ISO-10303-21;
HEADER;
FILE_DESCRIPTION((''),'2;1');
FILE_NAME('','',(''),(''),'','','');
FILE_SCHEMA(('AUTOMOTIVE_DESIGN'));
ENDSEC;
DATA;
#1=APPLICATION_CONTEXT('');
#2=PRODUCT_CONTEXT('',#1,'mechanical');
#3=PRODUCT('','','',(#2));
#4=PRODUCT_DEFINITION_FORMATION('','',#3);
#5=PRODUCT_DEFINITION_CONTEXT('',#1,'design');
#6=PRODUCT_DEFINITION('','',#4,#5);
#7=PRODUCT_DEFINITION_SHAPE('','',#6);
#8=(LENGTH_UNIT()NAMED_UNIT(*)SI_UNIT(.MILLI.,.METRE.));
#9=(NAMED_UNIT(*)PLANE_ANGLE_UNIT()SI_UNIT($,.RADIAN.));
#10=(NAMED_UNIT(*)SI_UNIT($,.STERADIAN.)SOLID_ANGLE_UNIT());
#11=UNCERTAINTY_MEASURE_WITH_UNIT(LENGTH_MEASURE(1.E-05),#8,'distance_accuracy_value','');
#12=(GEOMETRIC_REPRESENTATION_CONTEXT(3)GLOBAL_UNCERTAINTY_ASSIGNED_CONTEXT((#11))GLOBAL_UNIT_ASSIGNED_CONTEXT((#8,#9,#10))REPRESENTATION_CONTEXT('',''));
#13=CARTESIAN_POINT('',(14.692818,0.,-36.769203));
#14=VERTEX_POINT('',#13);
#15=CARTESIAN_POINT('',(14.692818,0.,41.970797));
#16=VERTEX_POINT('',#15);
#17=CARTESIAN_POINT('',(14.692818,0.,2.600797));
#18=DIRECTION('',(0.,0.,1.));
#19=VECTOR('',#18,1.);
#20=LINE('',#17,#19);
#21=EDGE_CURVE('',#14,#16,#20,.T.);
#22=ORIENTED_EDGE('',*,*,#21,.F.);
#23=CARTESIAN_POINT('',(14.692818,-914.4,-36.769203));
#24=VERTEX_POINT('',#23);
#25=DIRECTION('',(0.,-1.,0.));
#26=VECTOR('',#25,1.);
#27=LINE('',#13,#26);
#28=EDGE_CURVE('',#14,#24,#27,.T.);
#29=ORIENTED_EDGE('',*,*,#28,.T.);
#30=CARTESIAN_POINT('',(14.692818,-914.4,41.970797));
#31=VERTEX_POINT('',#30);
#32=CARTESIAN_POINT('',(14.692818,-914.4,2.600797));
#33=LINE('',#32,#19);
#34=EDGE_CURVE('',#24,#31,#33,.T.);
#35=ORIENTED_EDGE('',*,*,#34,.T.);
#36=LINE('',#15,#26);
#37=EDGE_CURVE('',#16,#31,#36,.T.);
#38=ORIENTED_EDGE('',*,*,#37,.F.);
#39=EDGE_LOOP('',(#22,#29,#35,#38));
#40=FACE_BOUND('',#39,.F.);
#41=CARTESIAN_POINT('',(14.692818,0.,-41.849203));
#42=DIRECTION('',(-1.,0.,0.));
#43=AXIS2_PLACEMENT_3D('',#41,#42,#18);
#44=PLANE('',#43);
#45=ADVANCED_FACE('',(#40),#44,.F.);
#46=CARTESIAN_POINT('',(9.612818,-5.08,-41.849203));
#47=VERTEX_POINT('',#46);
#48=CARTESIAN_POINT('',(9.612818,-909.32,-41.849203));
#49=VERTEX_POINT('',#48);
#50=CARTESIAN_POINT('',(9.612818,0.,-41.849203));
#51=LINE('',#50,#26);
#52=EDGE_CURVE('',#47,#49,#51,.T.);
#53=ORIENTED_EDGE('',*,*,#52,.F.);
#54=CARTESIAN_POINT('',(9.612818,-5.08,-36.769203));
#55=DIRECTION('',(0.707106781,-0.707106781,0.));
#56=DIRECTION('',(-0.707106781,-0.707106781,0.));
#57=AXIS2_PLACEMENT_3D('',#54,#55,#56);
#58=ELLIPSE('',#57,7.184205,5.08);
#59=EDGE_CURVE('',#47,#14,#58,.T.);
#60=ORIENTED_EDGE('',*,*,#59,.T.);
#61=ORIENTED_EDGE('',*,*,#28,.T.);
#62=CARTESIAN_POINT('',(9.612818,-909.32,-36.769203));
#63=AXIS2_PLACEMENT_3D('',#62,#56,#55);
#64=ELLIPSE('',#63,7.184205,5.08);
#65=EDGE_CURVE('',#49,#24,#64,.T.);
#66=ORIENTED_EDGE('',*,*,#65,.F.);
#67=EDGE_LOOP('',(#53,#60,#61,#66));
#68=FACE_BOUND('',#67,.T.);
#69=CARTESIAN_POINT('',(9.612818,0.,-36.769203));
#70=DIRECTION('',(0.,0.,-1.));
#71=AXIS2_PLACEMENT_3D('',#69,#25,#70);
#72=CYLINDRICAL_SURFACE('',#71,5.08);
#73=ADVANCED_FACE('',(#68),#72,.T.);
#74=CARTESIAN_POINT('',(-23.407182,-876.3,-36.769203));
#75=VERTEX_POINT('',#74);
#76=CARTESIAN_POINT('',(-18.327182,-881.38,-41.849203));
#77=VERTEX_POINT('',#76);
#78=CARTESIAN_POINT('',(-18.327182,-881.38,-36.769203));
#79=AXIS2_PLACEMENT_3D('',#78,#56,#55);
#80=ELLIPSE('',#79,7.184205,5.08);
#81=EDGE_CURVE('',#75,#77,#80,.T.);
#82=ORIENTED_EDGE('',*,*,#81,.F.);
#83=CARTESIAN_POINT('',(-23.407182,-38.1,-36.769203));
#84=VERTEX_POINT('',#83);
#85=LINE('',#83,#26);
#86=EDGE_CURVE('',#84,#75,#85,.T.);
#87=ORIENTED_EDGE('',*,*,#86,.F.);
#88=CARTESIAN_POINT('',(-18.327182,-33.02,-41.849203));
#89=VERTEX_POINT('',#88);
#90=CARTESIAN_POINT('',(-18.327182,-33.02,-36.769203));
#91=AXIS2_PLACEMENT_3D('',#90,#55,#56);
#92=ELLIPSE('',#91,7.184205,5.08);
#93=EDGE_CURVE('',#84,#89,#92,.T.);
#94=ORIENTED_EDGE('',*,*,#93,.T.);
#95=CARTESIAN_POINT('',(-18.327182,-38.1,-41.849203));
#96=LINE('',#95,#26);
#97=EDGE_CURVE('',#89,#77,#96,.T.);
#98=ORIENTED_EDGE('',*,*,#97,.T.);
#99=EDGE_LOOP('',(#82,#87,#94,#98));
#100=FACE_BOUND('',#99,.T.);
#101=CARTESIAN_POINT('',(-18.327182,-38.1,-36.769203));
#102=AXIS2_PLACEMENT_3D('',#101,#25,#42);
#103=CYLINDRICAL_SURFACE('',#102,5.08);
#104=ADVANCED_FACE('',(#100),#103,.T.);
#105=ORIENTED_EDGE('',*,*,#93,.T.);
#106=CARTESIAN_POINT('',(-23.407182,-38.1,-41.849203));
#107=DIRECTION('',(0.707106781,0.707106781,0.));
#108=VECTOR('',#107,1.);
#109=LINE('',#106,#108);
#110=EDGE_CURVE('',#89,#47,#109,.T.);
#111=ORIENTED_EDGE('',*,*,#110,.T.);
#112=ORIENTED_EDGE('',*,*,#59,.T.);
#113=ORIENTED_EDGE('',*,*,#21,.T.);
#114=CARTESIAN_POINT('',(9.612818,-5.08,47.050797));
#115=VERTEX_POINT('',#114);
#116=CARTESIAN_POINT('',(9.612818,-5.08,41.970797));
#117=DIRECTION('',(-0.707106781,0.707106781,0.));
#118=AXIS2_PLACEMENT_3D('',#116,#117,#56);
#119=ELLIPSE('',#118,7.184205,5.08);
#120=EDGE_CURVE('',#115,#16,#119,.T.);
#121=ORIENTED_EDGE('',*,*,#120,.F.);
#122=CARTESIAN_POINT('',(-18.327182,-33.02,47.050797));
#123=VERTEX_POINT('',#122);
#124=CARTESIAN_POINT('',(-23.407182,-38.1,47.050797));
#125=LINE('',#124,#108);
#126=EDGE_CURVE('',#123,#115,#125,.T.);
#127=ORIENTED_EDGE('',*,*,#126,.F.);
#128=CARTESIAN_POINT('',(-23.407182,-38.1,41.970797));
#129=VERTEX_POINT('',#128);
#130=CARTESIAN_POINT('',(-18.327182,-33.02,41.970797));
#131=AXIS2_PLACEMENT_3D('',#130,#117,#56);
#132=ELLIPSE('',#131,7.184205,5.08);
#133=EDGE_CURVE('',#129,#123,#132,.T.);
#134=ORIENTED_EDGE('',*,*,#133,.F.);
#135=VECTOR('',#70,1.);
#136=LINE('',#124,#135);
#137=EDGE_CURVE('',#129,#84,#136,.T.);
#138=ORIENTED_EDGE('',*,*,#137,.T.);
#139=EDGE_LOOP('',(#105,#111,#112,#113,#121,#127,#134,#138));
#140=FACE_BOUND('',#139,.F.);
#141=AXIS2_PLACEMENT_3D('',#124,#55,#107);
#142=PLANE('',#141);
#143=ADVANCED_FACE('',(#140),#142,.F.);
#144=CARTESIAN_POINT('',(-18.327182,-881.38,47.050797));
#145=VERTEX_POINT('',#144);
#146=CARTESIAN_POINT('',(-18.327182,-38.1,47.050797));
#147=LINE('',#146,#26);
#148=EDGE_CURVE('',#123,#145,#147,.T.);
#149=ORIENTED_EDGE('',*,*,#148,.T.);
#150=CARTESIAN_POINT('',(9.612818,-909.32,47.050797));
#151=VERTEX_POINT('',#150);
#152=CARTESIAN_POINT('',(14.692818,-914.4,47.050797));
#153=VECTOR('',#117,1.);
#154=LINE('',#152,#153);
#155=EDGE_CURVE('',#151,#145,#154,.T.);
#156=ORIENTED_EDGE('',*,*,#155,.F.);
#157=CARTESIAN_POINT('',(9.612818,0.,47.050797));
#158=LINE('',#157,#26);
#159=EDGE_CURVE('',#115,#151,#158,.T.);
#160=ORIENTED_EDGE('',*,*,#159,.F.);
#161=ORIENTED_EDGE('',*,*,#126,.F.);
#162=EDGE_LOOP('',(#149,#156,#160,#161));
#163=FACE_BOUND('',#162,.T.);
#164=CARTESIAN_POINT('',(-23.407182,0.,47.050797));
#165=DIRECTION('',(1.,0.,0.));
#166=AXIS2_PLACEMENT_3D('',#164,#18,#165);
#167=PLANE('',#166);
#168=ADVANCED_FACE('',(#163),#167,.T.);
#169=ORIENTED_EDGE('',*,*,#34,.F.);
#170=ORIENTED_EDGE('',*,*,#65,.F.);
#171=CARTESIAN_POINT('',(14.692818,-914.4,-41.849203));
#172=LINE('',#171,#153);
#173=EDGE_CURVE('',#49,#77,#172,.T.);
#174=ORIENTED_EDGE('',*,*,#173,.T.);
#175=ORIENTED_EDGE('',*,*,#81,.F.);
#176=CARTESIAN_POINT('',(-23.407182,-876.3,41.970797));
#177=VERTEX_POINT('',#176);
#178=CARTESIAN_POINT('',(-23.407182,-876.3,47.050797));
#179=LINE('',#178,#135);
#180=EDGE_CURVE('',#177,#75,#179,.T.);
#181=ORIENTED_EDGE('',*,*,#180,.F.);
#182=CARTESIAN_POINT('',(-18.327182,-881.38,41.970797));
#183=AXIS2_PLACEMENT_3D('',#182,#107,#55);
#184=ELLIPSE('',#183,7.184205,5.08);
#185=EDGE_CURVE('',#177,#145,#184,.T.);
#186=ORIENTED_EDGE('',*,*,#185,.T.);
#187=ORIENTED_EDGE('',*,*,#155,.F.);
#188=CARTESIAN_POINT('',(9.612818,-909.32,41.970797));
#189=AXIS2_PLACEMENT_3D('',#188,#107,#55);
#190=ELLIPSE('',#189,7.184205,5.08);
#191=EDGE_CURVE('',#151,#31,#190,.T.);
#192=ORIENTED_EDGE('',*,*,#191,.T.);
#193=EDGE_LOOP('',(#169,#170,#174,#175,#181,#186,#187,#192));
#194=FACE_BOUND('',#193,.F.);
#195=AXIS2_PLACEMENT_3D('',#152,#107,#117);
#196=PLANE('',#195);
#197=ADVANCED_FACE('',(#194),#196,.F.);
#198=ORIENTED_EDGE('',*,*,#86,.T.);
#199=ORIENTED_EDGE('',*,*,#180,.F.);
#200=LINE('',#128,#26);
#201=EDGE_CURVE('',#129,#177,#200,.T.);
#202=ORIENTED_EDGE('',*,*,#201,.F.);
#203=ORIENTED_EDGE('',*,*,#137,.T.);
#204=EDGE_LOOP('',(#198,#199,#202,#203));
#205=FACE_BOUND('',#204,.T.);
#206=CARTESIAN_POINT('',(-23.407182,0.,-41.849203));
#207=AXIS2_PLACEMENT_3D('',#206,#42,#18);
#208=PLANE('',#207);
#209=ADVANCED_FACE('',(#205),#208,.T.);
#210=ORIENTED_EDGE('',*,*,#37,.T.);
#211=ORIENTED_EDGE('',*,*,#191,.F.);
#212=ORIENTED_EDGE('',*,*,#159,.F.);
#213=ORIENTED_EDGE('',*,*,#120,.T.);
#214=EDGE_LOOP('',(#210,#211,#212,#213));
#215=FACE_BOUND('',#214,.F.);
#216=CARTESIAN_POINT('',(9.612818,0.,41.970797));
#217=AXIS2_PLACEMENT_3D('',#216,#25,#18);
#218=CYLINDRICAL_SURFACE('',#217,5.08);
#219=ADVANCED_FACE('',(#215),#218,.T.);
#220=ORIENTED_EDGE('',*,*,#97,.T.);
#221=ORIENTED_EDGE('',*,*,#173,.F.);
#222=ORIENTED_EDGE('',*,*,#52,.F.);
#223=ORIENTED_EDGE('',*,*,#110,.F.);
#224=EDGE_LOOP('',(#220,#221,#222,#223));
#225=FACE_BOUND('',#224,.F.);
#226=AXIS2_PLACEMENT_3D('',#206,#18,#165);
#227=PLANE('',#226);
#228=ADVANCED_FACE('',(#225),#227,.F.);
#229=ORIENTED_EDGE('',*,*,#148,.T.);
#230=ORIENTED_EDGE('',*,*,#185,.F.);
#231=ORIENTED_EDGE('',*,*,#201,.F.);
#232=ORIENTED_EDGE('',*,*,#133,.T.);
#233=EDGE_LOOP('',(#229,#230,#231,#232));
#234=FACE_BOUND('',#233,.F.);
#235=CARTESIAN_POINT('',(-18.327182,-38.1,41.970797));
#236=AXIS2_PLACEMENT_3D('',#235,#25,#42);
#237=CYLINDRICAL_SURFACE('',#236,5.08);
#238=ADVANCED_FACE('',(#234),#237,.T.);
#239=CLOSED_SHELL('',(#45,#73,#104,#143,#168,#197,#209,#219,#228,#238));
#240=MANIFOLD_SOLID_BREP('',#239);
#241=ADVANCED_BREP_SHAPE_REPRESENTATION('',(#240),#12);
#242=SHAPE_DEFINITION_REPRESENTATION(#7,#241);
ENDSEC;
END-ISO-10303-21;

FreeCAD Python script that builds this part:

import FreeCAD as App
import Part
import Sketcher

V = App.Vector
Q = App.Units.Quantity


def edges_at(feature, points):
    """Names of the edges that pass closest to the given points."""
    edges = feature.Shape.Edges
    near = lambda p: min(range(len(edges)), key=lambda i: edges[i].distToShape(Part.Vertex(*p))[0])
    return sorted({f"Edge{near(p) + 1}" for p in points})

doc = App.newDocument("Part")
body = doc.addObject("PartDesign::Body", "Body")

sketch1 = body.newObject("Sketcher::SketchObject", "Sketch")
sketch1.AttachmentSupport = (doc.getObject("XZ_Plane"), [""])
sketch1.MapMode = "FlatFace"
sketch1.addGeometry([
    Part.LineSegment(V(-23, 47, 0), V(-23, -42, 0)),
    Part.LineSegment(V(-23, -42, 0), V(15, -42, 0)),
    Part.LineSegment(V(15, -42, 0), V(15, 47, 0)),
    Part.LineSegment(V(15, 47, 0), V(-23, 47, 0)),
], False)
sketch1.addConstraint([
    Sketcher.Constraint("Coincident", 0, 2, 1, 1),
    Sketcher.Constraint("Coincident", 1, 2, 2, 1),
    Sketcher.Constraint("Coincident", 2, 2, 3, 1),
    Sketcher.Constraint("Coincident", 3, 2, 0, 1),
    Sketcher.Constraint("Vertical", 0),
    Sketcher.Constraint("Horizontal", 1),
    Sketcher.Constraint("Vertical", 2),
    Sketcher.Constraint("Horizontal", 3),
    Sketcher.Constraint("DistanceX", 1, 1, 1, 2, Q("1.5 in")),
    Sketcher.Constraint("DistanceY", 0, 2, 0, 1, Q("3.5 in")),
    Sketcher.Constraint("DistanceX", 0, 2, -1, 1, Q("23.407182 mm")),
    Sketcher.Constraint("DistanceY", 0, 2, -1, 1, Q("41.849203 mm")),
])
pad1 = body.newObject("PartDesign::Pad", "Pad")
pad1.Profile = sketch1
pad1.Length = Q("36 in")

sketch2 = body.newObject("Sketcher::SketchObject", "Sketch001")
sketch2.AttachmentSupport = (doc.getObject("XY_Plane"), [""])
sketch2.MapMode = "FlatFace"
sketch2.AttachmentOffset = App.Placement(V(0, 0, 47.050797), App.Rotation())
sketch2.addGeometry([
    Part.LineSegment(V(-23, -914, 0), V(15, -914, 0)),
    Part.LineSegment(V(15, -914, 0), V(-23, -876, 0)),
    Part.LineSegment(V(-23, -876, 0), V(-23, -914, 0)),
    Part.LineSegment(V(-23, -38, 0), V(15, 0, 0)),
    Part.LineSegment(V(15, 0, 0), V(-23, 0, 0)),
    Part.LineSegment(V(-23, 0, 0), V(-23, -38, 0)),
], False)
sketch2.addConstraint([
    Sketcher.Constraint("Coincident", 0, 2, 1, 1),
    Sketcher.Constraint("Coincident", 1, 2, 2, 1),
    Sketcher.Constraint("Coincident", 2, 2, 0, 1),
    Sketcher.Constraint("Coincident", 3, 2, 4, 1),
    Sketcher.Constraint("Coincident", 4, 2, 5, 1),
    Sketcher.Constraint("Coincident", 5, 2, 3, 1),
    Sketcher.Constraint("Horizontal", 0),
    Sketcher.Constraint("Vertical", 2),
    Sketcher.Constraint("Horizontal", 4),
    Sketcher.Constraint("Vertical", 5),
    Sketcher.Constraint("PointOnObject", 3, 2, -1),
    Sketcher.Constraint("Perpendicular", 1, 3),
    Sketcher.Constraint("Vertical", 0, 2, 3, 2),
    Sketcher.Constraint("Vertical", 2, 2, 4, 2),
    Sketcher.Constraint("Equal", 4, 2),
    Sketcher.Constraint("DistanceX", 0, 1, 0, 2, Q("1.5 in")),
    Sketcher.Constraint("DistanceY", 0, 2, -1, 1, Q("36 in")),
    Sketcher.Constraint("DistanceX", -1, 1, 0, 2, Q("14.692818 mm")),
])
pocket1 = body.newObject("PartDesign::Pocket", "Pocket")
pocket1.Profile = sketch2
pocket1.Length = Q("3.5 in")
doc.recompute()

fillet = body.newObject("PartDesign::Fillet", "Fillet")
fillet.Base = (pocket1, edges_at(pocket1, [
    (-23.407, -457.2, 47.051),
    (14.693, -457.2, 47.051),
    (-23.407, -457.2, -41.849),
    (14.693, -457.2, -41.849),
]))
fillet.Radius = Q("0.2 in")

doc.recompute()
